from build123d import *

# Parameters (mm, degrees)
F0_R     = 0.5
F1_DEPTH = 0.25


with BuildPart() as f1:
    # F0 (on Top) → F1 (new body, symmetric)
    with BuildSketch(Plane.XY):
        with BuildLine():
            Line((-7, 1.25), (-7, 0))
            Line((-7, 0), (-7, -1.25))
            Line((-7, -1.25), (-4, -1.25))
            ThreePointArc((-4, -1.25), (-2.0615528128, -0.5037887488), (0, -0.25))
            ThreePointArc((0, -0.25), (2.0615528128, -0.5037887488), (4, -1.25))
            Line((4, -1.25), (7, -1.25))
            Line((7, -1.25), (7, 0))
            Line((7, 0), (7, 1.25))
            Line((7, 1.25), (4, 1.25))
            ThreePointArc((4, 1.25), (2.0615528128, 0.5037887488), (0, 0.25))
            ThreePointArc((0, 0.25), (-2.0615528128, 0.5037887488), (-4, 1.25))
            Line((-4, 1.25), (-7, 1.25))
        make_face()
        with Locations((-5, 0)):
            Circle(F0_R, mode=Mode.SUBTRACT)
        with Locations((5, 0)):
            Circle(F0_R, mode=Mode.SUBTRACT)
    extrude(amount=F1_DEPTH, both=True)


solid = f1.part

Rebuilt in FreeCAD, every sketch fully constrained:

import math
import FreeCAD as App
import Part
import Sketcher
from FreeCAD import Vector
Q = App.Units.Quantity

doc = App.newDocument("Part")
params = doc.addObject("Spreadsheet::Sheet", "Params")
for row, (alias, value) in enumerate([
    ("sketch1_diameter", "1 mm"),
    ("sketch1_radius", "8.5 mm"),
    ("sketch1_width", "3 mm"),
    ("sketch1_height", "2.5 mm"),
    ("pad1_length", "0.5 mm"),
], start=1):
    params.set(f"A{row}", alias)
    params.set(f"B{row}", "=" + value)
    params.setAlias(f"B{row}", alias)

body = doc.addObject("PartDesign::Body", "Body")

sketch1 = body.newObject("Sketcher::SketchObject", "Sketch")
sketch1.AttachmentSupport = (doc.getObject("XY_Plane"), [""])
sketch1.MapMode = "FlatFace"
sketch1.addGeometry([
    Part.LineSegment(Vector(-7, 1.2, 0), Vector(-7, -1.2, 0)),
    Part.LineSegment(Vector(-7, -1.2, 0), Vector(-4, -1.2, 0)),
    Part.ArcOfCircle(Part.Circle(Vector(0, -8.8, 0), Vector(0, 0, 1), 8.5), math.radians(90), math.radians(118)),
    Part.ArcOfCircle(Part.Circle(Vector(0, -8.8, 0), Vector(0, 0, 1), 8.5), math.radians(62), math.radians(90)),
    Part.LineSegment(Vector(4, -1.2, 0), Vector(7, -1.2, 0)),
    Part.LineSegment(Vector(7, -1.2, 0), Vector(7, 1.2, 0)),
    Part.LineSegment(Vector(7, 1.2, 0), Vector(4, 1.2, 0)),
    Part.ArcOfCircle(Part.Circle(Vector(0, 8.8, 0), Vector(0, 0, 1), 8.5), math.radians(-90), math.radians(-62)),
    Part.ArcOfCircle(Part.Circle(Vector(0, 8.8, 0), Vector(0, 0, 1), 8.5), math.radians(-118), math.radians(-90)),
    Part.LineSegment(Vector(-4, 1.2, 0), Vector(-7, 1.2, 0)),
    Part.Circle(Vector(-5, 0, 0), Vector(0, 0, 1), 0.5),
    Part.Circle(Vector(5, 0, 0), Vector(0, 0, 1), 0.5),
], False)
sketch1.addConstraint([
    Sketcher.Constraint("Coincident", 0, 2, 1, 1),
    Sketcher.Constraint("Coincident", 1, 2, 2, 2),
    Sketcher.Constraint("Tangent", 2, 1, 3, 2),
    Sketcher.Constraint("Coincident", 3, 1, 4, 1),
    Sketcher.Constraint("Coincident", 4, 2, 5, 1),
    Sketcher.Constraint("Coincident", 5, 2, 6, 1),
    Sketcher.Constraint("Coincident", 6, 2, 7, 2),
    Sketcher.Constraint("Tangent", 7, 1, 8, 2),
    Sketcher.Constraint("Coincident", 8, 1, 9, 1),
    Sketcher.Constraint("Coincident", 9, 2, 0, 1),
    Sketcher.Constraint("Vertical", 0),
    Sketcher.Constraint("Horizontal", 1),
    Sketcher.Constraint("Horizontal", 4),
    Sketcher.Constraint("Vertical", 5),
    Sketcher.Constraint("Horizontal", 6),
    Sketcher.Constraint("Horizontal", 9),
    Sketcher.Constraint("Equal", 2, 3),
    Sketcher.Constraint("Equal", 3, 7),
    Sketcher.Constraint("Equal", 7, 8),
    Sketcher.Constraint("Equal", 10, 11),
    Sketcher.Constraint("Symmetric", 2, 3, 7, 3, -1, 1),
    Sketcher.Constraint("Symmetric", 10, 3, 11, 3, -1, 1),
    Sketcher.Constraint("Symmetric", 0, 2, 5, 2, -1, 1),
    Sketcher.Constraint("Symmetric", 1, 2, 3, 1, -2),
    Sketcher.Constraint("PointOnObject", 10, 3, -1),
    Sketcher.Constraint("PointOnObject", 2, 1, -2),
    Sketcher.Constraint("PointOnObject", 7, 1, -2),
    Sketcher.Constraint("Horizontal", 6, 2, 8, 1),
    Sketcher.Constraint("Diameter", 10, Q("1 mm")),
    Sketcher.Constraint("Radius", 2, Q("8.5 mm")),
    Sketcher.Constraint("DistanceX", 1, 1, 1, 2, Q("3 mm")),
    Sketcher.Constraint("DistanceY", 0, 2, 0, 1, Q("2.5 mm")),
    Sketcher.Constraint("DistanceX", 10, 3, -1, 1, Q("5 mm")),
    Sketcher.Constraint("DistanceX", 0, 2, -1, 1, Q("7 mm")),
])
sketch1.setExpression("Constraints[28]", "Params.sketch1_diameter")
sketch1.setExpression("Constraints[29]", "Params.sketch1_radius")
sketch1.setExpression("Constraints[30]", "Params.sketch1_width")
sketch1.setExpression("Constraints[31]", "Params.sketch1_height")
pad1 = body.newObject("PartDesign::Pad", "Pad")
pad1.Profile = sketch1
pad1.setExpression("Length", "Params.pad1_length")
pad1.Midplane = True

doc.recompute()
